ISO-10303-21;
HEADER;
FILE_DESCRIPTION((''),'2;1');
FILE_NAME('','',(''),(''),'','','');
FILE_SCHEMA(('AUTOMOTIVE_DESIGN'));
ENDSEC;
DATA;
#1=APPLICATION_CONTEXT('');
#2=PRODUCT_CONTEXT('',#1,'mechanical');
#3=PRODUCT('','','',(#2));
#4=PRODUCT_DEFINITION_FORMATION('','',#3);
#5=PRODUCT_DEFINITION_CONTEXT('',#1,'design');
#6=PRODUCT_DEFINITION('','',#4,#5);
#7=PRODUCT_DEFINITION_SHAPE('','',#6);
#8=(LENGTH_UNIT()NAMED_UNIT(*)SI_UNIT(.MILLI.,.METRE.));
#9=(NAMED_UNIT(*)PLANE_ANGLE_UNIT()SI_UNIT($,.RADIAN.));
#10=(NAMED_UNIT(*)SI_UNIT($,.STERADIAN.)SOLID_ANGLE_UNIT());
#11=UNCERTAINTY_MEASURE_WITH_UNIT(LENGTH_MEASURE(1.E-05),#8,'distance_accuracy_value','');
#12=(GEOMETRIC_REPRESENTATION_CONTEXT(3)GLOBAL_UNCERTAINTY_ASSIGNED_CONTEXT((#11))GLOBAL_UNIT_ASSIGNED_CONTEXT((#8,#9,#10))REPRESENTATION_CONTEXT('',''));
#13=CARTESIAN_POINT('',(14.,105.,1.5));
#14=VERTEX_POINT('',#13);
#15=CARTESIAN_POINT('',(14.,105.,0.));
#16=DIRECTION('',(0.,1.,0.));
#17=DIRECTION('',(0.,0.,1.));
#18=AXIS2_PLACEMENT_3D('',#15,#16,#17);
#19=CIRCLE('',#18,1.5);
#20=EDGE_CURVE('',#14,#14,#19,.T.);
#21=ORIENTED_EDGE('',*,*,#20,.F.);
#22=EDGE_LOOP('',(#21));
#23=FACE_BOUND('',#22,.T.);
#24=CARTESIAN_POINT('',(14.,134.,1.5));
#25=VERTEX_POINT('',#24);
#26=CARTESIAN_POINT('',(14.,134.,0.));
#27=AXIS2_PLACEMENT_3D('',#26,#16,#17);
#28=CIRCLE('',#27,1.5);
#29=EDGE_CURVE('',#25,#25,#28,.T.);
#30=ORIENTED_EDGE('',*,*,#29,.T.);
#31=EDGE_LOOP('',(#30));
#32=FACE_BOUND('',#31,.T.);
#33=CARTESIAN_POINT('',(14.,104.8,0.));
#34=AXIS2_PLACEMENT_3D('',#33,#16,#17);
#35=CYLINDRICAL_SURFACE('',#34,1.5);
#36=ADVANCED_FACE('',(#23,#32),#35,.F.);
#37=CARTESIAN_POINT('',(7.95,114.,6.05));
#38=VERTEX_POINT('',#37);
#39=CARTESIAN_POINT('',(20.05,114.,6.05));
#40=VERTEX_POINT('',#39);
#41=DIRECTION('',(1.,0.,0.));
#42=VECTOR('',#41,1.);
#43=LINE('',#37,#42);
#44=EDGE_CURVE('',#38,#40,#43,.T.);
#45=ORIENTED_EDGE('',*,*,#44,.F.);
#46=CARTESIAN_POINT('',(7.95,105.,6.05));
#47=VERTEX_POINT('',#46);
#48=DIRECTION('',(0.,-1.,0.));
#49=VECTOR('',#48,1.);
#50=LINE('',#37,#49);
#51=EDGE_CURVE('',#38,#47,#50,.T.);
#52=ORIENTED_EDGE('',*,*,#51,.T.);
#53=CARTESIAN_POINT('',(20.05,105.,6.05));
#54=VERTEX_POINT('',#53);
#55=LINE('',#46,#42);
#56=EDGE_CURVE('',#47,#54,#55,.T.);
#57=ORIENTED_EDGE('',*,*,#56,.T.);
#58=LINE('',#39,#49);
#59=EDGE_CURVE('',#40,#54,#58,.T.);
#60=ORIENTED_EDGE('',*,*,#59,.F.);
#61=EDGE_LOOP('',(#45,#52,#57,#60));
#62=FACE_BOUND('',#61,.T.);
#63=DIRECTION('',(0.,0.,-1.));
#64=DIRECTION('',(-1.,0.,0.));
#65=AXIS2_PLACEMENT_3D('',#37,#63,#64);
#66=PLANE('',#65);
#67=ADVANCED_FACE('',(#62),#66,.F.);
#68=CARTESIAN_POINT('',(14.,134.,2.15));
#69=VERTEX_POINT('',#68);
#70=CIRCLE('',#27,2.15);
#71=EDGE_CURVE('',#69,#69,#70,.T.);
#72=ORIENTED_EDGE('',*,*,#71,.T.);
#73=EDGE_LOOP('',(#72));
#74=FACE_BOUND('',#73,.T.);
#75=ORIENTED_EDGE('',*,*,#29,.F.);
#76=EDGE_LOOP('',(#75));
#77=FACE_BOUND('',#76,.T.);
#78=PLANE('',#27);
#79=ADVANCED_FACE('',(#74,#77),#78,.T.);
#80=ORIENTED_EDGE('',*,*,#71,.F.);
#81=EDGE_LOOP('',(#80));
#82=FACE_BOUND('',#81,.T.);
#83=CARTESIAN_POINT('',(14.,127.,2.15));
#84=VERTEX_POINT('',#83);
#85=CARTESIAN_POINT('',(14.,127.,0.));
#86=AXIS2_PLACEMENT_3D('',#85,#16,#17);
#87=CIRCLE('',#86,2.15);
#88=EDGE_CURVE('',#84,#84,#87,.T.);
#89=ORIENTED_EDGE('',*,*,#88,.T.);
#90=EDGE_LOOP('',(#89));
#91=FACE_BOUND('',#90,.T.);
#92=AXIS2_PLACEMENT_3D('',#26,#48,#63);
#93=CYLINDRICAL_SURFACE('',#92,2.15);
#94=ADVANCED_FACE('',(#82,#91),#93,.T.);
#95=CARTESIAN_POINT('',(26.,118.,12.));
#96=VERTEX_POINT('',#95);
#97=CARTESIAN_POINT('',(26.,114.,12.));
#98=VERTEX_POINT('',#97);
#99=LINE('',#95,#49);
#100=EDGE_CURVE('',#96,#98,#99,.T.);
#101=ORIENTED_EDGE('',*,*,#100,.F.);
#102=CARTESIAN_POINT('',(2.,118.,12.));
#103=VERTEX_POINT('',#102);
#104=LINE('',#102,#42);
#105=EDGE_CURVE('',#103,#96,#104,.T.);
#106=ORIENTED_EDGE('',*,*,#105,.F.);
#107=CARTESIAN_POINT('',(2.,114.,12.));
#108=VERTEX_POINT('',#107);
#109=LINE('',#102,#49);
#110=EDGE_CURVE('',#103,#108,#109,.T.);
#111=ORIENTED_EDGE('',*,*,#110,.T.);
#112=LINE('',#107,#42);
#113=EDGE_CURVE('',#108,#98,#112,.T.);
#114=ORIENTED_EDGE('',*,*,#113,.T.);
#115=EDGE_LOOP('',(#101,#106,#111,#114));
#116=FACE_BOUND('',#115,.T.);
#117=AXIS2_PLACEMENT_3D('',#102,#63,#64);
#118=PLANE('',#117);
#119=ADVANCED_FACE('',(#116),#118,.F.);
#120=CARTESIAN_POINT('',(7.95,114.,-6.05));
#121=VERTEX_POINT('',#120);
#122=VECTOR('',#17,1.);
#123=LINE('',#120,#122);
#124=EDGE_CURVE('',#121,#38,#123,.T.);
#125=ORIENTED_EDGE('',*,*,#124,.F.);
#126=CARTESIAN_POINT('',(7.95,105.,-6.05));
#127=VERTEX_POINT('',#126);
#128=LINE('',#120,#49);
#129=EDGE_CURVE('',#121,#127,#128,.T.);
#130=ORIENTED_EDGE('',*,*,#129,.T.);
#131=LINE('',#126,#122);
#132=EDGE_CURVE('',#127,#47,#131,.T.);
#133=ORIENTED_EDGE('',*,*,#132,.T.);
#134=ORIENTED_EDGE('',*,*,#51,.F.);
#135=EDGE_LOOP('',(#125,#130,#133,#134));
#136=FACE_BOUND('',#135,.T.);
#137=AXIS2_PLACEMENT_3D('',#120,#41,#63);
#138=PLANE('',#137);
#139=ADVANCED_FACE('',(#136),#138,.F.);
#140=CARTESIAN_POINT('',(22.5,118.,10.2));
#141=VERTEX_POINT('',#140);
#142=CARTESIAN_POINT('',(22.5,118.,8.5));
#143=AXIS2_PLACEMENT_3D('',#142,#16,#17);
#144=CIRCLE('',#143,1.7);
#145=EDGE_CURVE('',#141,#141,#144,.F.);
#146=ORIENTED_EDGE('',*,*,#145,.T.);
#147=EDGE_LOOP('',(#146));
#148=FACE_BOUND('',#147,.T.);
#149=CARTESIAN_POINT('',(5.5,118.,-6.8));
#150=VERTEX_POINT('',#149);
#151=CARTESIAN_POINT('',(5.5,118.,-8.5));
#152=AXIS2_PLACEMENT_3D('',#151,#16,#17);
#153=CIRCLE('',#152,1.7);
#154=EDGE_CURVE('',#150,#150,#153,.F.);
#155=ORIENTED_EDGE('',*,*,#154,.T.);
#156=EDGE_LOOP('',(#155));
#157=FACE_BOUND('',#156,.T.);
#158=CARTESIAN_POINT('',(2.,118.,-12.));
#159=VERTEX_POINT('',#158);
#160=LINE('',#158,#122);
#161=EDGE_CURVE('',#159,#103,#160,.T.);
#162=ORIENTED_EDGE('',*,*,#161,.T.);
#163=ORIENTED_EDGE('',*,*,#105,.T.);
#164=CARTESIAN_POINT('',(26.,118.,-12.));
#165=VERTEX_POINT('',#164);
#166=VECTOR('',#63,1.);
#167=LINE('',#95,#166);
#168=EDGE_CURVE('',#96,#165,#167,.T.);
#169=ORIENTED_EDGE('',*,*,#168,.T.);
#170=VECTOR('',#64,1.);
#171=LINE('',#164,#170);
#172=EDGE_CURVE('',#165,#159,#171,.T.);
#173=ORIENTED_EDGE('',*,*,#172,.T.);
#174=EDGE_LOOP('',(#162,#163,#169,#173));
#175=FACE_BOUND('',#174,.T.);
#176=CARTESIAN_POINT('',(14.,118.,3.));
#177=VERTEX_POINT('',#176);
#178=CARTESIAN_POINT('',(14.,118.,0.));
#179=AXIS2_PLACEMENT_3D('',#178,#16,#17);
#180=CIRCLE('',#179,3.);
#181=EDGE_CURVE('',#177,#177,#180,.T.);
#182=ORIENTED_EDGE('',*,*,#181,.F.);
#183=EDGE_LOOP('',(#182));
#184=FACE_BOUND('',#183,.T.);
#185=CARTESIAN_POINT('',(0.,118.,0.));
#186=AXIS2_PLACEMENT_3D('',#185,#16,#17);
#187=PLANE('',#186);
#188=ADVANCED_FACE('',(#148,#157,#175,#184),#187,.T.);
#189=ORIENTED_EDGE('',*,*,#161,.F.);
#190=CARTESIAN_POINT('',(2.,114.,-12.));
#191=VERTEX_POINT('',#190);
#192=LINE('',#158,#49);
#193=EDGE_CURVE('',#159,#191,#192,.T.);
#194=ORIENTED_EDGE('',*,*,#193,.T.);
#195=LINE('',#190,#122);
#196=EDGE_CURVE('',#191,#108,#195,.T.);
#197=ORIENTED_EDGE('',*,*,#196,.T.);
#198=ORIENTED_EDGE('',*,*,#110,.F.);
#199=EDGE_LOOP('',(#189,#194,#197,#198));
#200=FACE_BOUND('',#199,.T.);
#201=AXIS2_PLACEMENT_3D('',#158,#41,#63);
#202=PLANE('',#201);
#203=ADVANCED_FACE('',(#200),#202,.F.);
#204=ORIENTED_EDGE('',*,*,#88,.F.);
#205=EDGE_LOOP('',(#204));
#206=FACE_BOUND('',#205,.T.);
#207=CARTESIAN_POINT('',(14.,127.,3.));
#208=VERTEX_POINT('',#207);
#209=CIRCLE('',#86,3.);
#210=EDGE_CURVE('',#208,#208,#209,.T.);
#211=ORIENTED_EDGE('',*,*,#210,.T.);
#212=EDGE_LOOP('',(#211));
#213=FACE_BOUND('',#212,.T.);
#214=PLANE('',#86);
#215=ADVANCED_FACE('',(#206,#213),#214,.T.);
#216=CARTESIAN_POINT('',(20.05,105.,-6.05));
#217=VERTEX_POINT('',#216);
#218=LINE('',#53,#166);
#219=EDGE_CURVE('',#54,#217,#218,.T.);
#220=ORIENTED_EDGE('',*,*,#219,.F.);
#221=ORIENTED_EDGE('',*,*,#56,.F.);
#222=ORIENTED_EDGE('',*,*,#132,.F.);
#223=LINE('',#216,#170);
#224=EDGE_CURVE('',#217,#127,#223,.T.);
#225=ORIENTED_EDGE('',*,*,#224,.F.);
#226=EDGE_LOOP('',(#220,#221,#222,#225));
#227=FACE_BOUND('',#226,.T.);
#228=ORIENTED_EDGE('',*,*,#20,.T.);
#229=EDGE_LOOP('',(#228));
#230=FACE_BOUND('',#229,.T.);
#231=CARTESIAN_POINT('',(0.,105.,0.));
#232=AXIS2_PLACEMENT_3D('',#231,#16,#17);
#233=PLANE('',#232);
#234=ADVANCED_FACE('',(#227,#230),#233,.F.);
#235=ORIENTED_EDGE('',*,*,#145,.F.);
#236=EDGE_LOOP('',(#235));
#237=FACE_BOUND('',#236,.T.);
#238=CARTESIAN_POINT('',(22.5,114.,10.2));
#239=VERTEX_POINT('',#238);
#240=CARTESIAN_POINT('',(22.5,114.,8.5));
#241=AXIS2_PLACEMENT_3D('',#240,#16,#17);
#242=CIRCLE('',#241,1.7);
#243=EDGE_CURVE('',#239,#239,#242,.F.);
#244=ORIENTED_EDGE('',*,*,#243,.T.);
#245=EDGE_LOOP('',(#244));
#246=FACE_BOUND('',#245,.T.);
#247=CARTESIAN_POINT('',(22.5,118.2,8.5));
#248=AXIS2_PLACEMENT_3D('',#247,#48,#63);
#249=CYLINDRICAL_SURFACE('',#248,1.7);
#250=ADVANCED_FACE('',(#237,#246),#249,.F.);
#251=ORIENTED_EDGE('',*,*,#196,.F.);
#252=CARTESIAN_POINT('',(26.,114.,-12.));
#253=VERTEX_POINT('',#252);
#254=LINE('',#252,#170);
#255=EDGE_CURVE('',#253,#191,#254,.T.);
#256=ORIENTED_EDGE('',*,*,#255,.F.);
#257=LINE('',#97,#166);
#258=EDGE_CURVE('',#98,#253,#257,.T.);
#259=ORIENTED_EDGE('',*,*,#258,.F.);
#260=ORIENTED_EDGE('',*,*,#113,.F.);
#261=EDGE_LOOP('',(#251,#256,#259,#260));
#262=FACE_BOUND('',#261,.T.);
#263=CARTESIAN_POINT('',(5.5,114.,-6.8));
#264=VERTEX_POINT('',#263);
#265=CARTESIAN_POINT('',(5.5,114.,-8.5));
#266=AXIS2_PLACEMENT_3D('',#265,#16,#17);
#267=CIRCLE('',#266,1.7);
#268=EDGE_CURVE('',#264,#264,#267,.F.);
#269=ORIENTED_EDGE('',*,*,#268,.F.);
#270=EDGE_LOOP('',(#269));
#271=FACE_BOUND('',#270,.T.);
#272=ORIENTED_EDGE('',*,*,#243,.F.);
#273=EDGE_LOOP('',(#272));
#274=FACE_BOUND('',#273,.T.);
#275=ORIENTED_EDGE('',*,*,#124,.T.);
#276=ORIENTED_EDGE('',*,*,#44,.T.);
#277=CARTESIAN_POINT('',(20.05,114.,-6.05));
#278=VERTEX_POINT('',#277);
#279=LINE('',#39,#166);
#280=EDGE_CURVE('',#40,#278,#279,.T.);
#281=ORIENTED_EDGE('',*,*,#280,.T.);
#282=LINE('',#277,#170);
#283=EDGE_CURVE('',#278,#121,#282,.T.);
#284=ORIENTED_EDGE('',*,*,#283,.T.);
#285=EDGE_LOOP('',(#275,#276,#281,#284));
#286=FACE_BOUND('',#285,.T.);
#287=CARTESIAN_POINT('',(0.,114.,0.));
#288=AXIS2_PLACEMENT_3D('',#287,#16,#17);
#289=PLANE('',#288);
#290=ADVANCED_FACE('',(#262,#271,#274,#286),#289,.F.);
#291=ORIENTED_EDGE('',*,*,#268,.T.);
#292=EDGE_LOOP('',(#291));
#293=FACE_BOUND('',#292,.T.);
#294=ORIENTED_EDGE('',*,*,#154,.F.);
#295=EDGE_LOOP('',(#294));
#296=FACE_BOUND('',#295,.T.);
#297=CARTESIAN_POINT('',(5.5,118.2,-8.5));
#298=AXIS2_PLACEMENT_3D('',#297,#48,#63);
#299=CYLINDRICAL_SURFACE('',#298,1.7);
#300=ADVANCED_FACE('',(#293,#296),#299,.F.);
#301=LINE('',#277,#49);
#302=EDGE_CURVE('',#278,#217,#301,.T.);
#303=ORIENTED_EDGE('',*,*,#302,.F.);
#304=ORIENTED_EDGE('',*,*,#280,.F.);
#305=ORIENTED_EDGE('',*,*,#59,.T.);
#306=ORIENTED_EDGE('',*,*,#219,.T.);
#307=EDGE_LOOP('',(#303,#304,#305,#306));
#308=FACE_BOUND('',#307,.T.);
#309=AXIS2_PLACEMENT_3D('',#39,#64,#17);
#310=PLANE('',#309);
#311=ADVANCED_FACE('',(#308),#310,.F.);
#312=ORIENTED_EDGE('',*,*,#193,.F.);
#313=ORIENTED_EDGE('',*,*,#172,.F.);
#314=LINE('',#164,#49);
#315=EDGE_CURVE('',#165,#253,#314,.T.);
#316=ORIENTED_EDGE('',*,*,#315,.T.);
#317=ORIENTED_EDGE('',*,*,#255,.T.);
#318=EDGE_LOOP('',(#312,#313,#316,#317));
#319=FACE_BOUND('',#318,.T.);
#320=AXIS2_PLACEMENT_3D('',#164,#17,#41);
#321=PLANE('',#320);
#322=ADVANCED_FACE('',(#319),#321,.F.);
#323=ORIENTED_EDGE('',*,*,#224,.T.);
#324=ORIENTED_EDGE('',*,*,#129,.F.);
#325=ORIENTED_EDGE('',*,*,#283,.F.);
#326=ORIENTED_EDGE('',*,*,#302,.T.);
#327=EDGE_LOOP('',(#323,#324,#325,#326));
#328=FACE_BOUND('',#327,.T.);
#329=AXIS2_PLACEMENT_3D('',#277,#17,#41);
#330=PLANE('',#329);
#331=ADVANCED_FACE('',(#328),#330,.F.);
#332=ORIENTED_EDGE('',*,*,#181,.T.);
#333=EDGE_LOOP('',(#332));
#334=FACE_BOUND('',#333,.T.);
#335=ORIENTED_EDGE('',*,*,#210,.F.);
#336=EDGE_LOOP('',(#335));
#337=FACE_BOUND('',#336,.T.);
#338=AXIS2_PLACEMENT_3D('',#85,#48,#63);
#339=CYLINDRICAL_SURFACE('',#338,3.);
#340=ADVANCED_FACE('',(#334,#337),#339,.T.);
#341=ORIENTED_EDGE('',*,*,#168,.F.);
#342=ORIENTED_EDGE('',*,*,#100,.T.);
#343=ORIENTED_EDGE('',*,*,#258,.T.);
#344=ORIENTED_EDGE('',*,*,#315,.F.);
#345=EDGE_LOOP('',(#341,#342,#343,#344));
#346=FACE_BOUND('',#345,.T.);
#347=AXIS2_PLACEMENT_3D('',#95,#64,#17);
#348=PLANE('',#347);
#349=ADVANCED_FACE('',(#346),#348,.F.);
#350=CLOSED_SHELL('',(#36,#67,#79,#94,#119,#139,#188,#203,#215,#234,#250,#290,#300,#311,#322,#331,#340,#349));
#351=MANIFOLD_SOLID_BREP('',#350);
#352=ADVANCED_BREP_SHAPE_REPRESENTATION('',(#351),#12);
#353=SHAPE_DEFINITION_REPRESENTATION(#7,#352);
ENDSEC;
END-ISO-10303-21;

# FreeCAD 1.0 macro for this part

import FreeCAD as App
import Part
import Sketcher

V = App.Vector
Q = App.Units.Quantity

doc = App.newDocument("Part")
body = doc.addObject("PartDesign::Body", "Body")

# Sketch on XZ plane
sketch1 = doc.addObject("Sketcher::SketchObject", "Sketch")
body.addObject(sketch1)
sketch1.AttachmentSupport = (doc.XZ_Plane, [""])
sketch1.MapMode = "FlatFace"
sketch1.AttachmentOffset = App.Placement(V(0, 0, -105), App.Rotation())
sketch1.addGeometry(Part.LineSegment(V(8, -6, 0), V(8, 6, 0)), False)
sketch1.addGeometry(Part.LineSegment(V(8, 6, 0), V(20, 6, 0)), False)
sketch1.addGeometry(Part.LineSegment(V(20, 6, 0), V(20, -6, 0)), False)
sketch1.addGeometry(Part.LineSegment(V(20, -6, 0), V(8, -6, 0)), False)
sketch1.addConstraint(Sketcher.Constraint("Coincident", 0, 2, 1, 1))
sketch1.addConstraint(Sketcher.Constraint("Coincident", 1, 2, 2, 1))
sketch1.addConstraint(Sketcher.Constraint("Coincident", 2, 2, 3, 1))
sketch1.addConstraint(Sketcher.Constraint("Coincident", 3, 2, 0, 1))
sketch1.addConstraint(Sketcher.Constraint("Vertical", 0))
sketch1.addConstraint(Sketcher.Constraint("Horizontal", 1))
sketch1.addConstraint(Sketcher.Constraint("Vertical", 2))
sketch1.addConstraint(Sketcher.Constraint("Horizontal", 3))
sketch1.addConstraint(Sketcher.Constraint("Equal", 3, 0))
sketch1.addConstraint(Sketcher.Constraint("DistanceX", 1, 1, 1, 2, Q("12.1 mm")))
sketch1.addConstraint(Sketcher.Constraint("DistanceX", -1, 1, 0, 2, Q("7.95 mm")))
sketch1.addConstraint(Sketcher.Constraint("DistanceY", -1, 1, 0, 2, Q("6.05 mm")))
pad1 = doc.addObject("PartDesign::Pad", "Pad")
body.addObject(pad1)
pad1.Profile = sketch1
pad1.Length = 9
pad1.Reversed = True

# Sketch on XZ plane
sketch2 = doc.addObject("Sketcher::SketchObject", "Sketch001")
body.addObject(sketch2)
sketch2.AttachmentSupport = (doc.XZ_Plane, [""])
sketch2.MapMode = "FlatFace"
sketch2.AttachmentOffset = App.Placement(V(0, 0, -114), App.Rotation())
sketch2.addGeometry(Part.LineSegment(V(2, -12, 0), V(2, 12, 0)), False)
sketch2.addGeometry(Part.LineSegment(V(2, 12, 0), V(26, 12, 0)), False)
sketch2.addGeometry(Part.LineSegment(V(26, 12, 0), V(26, -12, 0)), False)
sketch2.addGeometry(Part.LineSegment(V(26, -12, 0), V(2, -12, 0)), False)
sketch2.addConstraint(Sketcher.Constraint("Coincident", 0, 2, 1, 1))
sketch2.addConstraint(Sketcher.Constraint("Coincident", 1, 2, 2, 1))
sketch2.addConstraint(Sketcher.Constraint("Coincident", 2, 2, 3, 1))
sketch2.addConstraint(Sketcher.Constraint("Coincident", 3, 2, 0, 1))
sketch2.addConstraint(Sketcher.Constraint("Vertical", 0))
sketch2.addConstraint(Sketcher.Constraint("Horizontal", 1))
sketch2.addConstraint(Sketcher.Constraint("Vertical", 2))
sketch2.addConstraint(Sketcher.Constraint("Horizontal", 3))
sketch2.addConstraint(Sketcher.Constraint("Equal", 3, 0))
sketch2.addConstraint(Sketcher.Constraint("DistanceX", 1, 1, 1, 2, Q("24 mm")))
sketch2.addConstraint(Sketcher.Constraint("DistanceX", -1, 1, 0, 2, Q("2 mm")))
sketch2.addConstraint(Sketcher.Constraint("DistanceY", -1, 1, 0, 2, Q("12 mm")))
pad2 = doc.addObject("PartDesign::Pad", "Pad001")
body.addObject(pad2)
pad2.Profile = sketch2
pad2.Length = 4
pad2.Reversed = True

# Sketch on XZ plane
sketch3 = doc.addObject("Sketcher::SketchObject", "Sketch002")
body.addObject(sketch3)
sketch3.AttachmentSupport = (doc.XZ_Plane, [""])
sketch3.MapMode = "FlatFace"
sketch3.AttachmentOffset = App.Placement(V(0, 0, -118), App.Rotation())
sketch3.addGeometry(Part.Circle(V(14, 0, 0), V(0, 0, 1), 3), False)
sketch3.addConstraint(Sketcher.Constraint("PointOnObject", 0, 3, -1))
sketch3.addConstraint(Sketcher.Constraint("Diameter", 0, Q("6 mm")))
sketch3.addConstraint(Sketcher.Constraint("DistanceX", -1, 1, 0, 3, Q("14 mm")))
pad3 = doc.addObject("PartDesign::Pad", "Pad002")
body.addObject(pad3)
pad3.Profile = sketch3
pad3.Length = 9
pad3.Reversed = True

# Sketch on XZ plane
sketch4 = doc.addObject("Sketcher::SketchObject", "Sketch003")
body.addObject(sketch4)
sketch4.AttachmentSupport = (doc.XZ_Plane, [""])
sketch4.MapMode = "FlatFace"
sketch4.AttachmentOffset = App.Placement(V(0, 0, -127), App.Rotation())
sketch4.addGeometry(Part.Circle(V(14, 0, 0), V(0, 0, 1), 2.1), False)
sketch4.addConstraint(Sketcher.Constraint("PointOnObject", 0, 3, -1))
sketch4.addConstraint(Sketcher.Constraint("Diameter", 0, Q("4.3 mm")))
sketch4.addConstraint(Sketcher.Constraint("DistanceX", -1, 1, 0, 3, Q("14 mm")))
pad4 = doc.addObject("PartDesign::Pad", "Pad003")
body.addObject(pad4)
pad4.Profile = sketch4
pad4.Length = 7
pad4.Reversed = True

# Sketch on XZ plane
sketch5 = doc.addObject("Sketcher::SketchObject", "Sketch004")
body.addObject(sketch5)
sketch5.AttachmentSupport = (doc.XZ_Plane, [""])
sketch5.MapMode = "FlatFace"
sketch5.AttachmentOffset = App.Placement(V(0, 0, -134), App.Rotation())
sketch5.addGeometry(Part.Circle(V(14, 0, 0), V(0, 0, 1), 1.5), False)
sketch5.addConstraint(Sketcher.Constraint("PointOnObject", 0, 3, -1))
sketch5.addConstraint(Sketcher.Constraint("Diameter", 0, Q("3 mm")))
sketch5.addConstraint(Sketcher.Constraint("DistanceX", -1, 1, 0, 3, Q("14 mm")))
pocket1 = doc.addObject("PartDesign::Pocket", "Pocket")
body.addObject(pocket1)
pocket1.Profile = sketch5
pocket1.Length = 29.2
pocket1.Reversed = True

# Sketch on XZ plane
sketch6 = doc.addObject("Sketcher::SketchObject", "Sketch005")
body.addObject(sketch6)
sketch6.AttachmentSupport = (doc.XZ_Plane, [""])
sketch6.MapMode = "FlatFace"
sketch6.AttachmentOffset = App.Placement(V(0, 0, -113.8), App.Rotation())
sketch6.addGeometry(Part.Circle(V(5.5, -8.5, 0), V(0, 0, 1), 1.7), False)
sketch6.addGeometry(Part.Circle(V(22.5, 8.5, 0), V(0, 0, 1), 1.7), False)
sketch6.addConstraint(Sketcher.Constraint("Equal", 0, 1))
sketch6.addConstraint(Sketcher.Constraint("Diameter", 0, Q("3.4 mm")))
sketch6.addConstraint(Sketcher.Constraint("DistanceX", 0, 3, 1, 3, Q("17 mm")))
sketch6.addConstraint(Sketcher.Constraint("DistanceY", 0, 3, 1, 3, Q("17 mm")))
sketch6.addConstraint(Sketcher.Constraint("DistanceX", -1, 1, 0, 3, Q("5.5 mm")))
sketch6.addConstraint(Sketcher.Constraint("DistanceY", 0, 3, -1, 1, Q("8.5 mm")))
pocket2 = doc.addObject("PartDesign::Pocket", "Pocket001")
body.addObject(pocket2)
pocket2.Profile = sketch6
pocket2.Length = 4.4

doc.recompute()
